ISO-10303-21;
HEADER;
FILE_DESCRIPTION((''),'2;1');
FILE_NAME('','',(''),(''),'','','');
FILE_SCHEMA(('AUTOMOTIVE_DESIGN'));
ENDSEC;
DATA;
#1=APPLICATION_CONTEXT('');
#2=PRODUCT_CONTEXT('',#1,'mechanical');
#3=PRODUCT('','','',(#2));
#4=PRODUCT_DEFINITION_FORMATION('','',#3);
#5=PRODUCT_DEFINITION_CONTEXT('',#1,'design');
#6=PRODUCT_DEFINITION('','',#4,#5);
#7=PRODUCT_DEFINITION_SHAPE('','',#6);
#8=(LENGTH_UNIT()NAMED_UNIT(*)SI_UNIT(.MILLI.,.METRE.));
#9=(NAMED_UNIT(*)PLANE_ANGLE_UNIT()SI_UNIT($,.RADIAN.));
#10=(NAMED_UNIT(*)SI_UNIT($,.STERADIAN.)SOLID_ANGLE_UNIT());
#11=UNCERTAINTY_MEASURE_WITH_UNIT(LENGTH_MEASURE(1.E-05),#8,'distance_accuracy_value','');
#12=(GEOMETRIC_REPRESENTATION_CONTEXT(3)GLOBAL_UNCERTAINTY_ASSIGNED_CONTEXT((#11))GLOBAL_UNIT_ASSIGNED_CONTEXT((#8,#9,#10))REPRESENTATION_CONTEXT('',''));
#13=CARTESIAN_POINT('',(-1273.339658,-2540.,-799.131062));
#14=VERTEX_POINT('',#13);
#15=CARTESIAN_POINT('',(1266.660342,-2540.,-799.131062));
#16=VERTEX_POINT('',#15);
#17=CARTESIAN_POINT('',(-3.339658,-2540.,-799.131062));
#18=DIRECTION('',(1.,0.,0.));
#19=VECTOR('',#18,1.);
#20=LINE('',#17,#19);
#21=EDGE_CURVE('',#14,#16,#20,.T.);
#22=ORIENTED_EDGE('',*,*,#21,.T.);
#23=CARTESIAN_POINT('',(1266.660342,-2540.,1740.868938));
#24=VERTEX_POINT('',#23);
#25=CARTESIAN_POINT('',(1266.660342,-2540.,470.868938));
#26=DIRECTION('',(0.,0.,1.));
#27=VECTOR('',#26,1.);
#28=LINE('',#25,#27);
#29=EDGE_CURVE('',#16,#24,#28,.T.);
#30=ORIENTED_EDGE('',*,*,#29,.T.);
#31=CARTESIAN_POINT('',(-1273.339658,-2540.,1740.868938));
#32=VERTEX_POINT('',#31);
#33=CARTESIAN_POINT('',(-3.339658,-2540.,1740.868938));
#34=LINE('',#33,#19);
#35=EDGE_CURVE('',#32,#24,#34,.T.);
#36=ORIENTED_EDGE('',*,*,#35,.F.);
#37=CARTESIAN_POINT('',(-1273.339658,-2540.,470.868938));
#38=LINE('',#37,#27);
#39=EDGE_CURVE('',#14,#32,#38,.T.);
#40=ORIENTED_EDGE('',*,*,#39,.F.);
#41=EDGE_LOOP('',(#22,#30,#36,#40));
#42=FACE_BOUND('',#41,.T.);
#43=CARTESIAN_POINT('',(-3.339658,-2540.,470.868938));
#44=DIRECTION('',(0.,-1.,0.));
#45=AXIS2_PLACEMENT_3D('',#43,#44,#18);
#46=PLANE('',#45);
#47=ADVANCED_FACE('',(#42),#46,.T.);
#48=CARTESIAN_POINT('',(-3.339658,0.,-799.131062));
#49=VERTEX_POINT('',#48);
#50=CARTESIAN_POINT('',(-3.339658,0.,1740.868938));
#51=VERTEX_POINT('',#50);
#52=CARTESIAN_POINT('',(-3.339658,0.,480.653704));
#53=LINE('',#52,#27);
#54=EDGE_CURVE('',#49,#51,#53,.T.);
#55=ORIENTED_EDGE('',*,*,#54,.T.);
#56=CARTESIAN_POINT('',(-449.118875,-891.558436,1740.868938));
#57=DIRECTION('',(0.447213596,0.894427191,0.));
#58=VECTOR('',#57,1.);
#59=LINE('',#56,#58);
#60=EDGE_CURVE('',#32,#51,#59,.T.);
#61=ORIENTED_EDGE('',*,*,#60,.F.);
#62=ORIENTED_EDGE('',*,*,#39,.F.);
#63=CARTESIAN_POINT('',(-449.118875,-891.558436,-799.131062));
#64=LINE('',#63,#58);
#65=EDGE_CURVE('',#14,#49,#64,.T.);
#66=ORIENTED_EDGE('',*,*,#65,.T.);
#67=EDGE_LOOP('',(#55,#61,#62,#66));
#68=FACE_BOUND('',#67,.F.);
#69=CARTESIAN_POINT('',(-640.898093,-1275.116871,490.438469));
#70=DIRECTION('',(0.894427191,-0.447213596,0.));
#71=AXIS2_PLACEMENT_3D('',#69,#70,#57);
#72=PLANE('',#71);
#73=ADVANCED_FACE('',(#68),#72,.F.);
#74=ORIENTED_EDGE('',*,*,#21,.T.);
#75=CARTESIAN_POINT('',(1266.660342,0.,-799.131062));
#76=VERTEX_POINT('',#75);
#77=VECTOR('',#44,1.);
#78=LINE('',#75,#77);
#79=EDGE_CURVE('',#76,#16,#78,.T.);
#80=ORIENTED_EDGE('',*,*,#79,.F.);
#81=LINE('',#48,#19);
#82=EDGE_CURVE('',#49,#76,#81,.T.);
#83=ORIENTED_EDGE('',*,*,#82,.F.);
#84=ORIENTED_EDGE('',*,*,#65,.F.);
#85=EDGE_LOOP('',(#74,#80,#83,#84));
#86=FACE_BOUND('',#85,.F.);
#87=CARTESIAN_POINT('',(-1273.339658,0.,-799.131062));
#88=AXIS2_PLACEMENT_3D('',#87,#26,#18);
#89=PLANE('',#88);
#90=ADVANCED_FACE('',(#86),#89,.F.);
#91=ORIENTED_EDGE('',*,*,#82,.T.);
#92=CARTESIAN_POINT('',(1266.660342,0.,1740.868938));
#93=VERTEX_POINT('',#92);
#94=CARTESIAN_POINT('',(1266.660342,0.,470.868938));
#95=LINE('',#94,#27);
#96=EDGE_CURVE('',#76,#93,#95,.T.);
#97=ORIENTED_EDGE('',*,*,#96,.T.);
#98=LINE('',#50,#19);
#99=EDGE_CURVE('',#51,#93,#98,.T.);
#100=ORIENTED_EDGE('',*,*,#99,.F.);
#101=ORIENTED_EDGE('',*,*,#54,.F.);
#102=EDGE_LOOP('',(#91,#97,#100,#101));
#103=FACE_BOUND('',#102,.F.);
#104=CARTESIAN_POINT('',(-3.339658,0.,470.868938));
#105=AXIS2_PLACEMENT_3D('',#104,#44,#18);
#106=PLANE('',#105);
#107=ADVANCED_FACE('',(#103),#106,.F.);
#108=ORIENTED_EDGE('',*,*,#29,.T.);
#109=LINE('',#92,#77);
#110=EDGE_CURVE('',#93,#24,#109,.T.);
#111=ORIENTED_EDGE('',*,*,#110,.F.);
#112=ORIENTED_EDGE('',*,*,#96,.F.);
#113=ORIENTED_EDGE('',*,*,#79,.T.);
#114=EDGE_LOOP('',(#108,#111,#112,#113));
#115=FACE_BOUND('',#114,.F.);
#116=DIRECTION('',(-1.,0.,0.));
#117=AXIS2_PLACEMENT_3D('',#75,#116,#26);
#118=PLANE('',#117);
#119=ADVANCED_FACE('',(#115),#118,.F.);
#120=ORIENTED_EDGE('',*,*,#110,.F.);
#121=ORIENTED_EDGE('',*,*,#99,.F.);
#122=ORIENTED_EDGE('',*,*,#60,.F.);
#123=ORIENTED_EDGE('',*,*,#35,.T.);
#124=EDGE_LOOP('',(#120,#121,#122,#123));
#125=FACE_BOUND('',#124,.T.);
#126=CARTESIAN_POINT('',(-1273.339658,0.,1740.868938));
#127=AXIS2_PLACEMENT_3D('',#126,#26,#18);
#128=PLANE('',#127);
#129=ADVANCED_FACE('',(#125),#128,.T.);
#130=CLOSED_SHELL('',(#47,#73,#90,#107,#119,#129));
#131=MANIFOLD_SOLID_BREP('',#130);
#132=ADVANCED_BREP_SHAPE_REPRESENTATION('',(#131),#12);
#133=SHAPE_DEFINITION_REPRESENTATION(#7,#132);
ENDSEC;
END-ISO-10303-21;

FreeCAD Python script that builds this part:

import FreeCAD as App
import Part
import Sketcher

V = App.Vector
Q = App.Units.Quantity


def add_polygon(sketch, points):
    """Adds a closed chain of lines whose ends are joined by coincident constraints."""
    first, n = sketch.GeometryCount, len(points)
    for a, b in zip(points, points[1:] + points[:1]):
        sketch.addGeometry(Part.LineSegment(App.Vector(*a, 0), App.Vector(*b, 0)), False)
    for i in range(n):
        sketch.addConstraint(Sketcher.Constraint("Coincident", first + i, 2, first + (i + 1) % n, 1))

doc = App.newDocument("Part")
body = doc.addObject("PartDesign::Body", "Body")

# Sketch on XZ plane
sketch1 = body.newObject("Sketcher::SketchObject", "Sketch")
sketch1.AttachmentSupport = (doc.getObject("XZ_Plane"), [""])
sketch1.MapMode = "FlatFace"
add_polygon(sketch1, [(-1273, 1741), (-1273, -799), (1267, -799), (1267, 1741)])  # lines 0-3
sketch1.addConstraint(Sketcher.Constraint("Vertical", 0))
sketch1.addConstraint(Sketcher.Constraint("Horizontal", 1))
sketch1.addConstraint(Sketcher.Constraint("Vertical", 2))
sketch1.addConstraint(Sketcher.Constraint("Horizontal", 3))
sketch1.addConstraint(Sketcher.Constraint("Equal", 3, 0))
sketch1.addConstraint(Sketcher.Constraint("DistanceX", 1, 1, 1, 2, Q("100 in")))
sketch1.addConstraint(Sketcher.Constraint("DistanceY", 0, 2, -1, 1, Q("799.131062 mm")))
sketch1.addConstraint(Sketcher.Constraint("DistanceX", 0, 2, -1, 1, Q("1273.339658 mm")))
pad1 = body.newObject("PartDesign::Pad", "Pad")
pad1.Profile = sketch1
pad1.Length = Q("100 in")

# Sketch on an angled plane
sketch2 = body.newObject("Sketcher::SketchObject", "Sketch001")
sketch2.Placement = App.Placement(V(-2.671726, 1.335863, 0), App.Rotation(V(0.447213595, 0.894427191, 0), V(0, 0, 1), V(0.894427191, -0.447213595, 0), "ZXY"))
add_polygon(sketch2, [(0, -799.386441), (0, 1789.139865), (-2858.915805, 1771.331428), (-2858.915805, -799.386441)])  # lines 0-3
sketch2.addConstraint(Sketcher.Constraint("Vertical", 0))
sketch2.addConstraint(Sketcher.Constraint("Vertical", 2))
sketch2.addConstraint(Sketcher.Constraint("Horizontal", 3))
sketch2.addConstraint(Sketcher.Constraint("PointOnObject", 0, 2, -2))
sketch2.addConstraint(Sketcher.Constraint("DistanceY", 2, 2, 2, 1, Q("2570.717869 mm")))
sketch2.addConstraint(Sketcher.Constraint("Distance", 1, Q("2858.971269 mm")))
sketch2.addConstraint(Sketcher.Constraint("DistanceX", 3, 1, 3, 2, Q("2858.915805 mm")))
sketch2.addConstraint(Sketcher.Constraint("DistanceY", 2, 2, -1, 1, Q("799.386441 mm")))
pocket1 = body.newObject("PartDesign::Pocket", "Pocket")
pocket1.Profile = sketch2
pocket1.Length = Q("100 in")

doc.recompute()
